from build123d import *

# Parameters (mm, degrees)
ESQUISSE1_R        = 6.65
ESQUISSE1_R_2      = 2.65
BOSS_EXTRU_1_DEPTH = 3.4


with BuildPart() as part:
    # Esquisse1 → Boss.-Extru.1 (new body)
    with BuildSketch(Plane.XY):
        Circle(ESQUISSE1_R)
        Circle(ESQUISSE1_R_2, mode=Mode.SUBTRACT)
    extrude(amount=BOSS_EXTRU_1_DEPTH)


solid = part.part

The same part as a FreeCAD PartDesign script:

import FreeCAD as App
import Part
import Sketcher

doc = App.newDocument("Part")
body = doc.addObject("PartDesign::Body", "Body")

sketch1 = body.newObject("Sketcher::SketchObject", "Sketch")
sketch1.AttachmentSupport = (doc.getObject("XY_Plane"), [""])
sketch1.MapMode = "FlatFace"
sketch1.addGeometry([
    Part.Circle(App.Vector(0, 0, 0), App.Vector(0, 0, 1), 6.65),
    Part.Circle(App.Vector(0, 0, 0), App.Vector(0, 0, 1), 2.65),
], False)
sketch1.addConstraint([
    Sketcher.Constraint("Coincident", 0, 3, -1, 1),
    Sketcher.Constraint("Coincident", 1, 3, -1, 1),
    Sketcher.Constraint("Diameter", 0, 13.3),
    Sketcher.Constraint("Diameter", 1, 5.3),
])
pad1 = body.newObject("PartDesign::Pad", "Pad")
pad1.Profile = sketch1
pad1.Length = 3.4

doc.recompute()
